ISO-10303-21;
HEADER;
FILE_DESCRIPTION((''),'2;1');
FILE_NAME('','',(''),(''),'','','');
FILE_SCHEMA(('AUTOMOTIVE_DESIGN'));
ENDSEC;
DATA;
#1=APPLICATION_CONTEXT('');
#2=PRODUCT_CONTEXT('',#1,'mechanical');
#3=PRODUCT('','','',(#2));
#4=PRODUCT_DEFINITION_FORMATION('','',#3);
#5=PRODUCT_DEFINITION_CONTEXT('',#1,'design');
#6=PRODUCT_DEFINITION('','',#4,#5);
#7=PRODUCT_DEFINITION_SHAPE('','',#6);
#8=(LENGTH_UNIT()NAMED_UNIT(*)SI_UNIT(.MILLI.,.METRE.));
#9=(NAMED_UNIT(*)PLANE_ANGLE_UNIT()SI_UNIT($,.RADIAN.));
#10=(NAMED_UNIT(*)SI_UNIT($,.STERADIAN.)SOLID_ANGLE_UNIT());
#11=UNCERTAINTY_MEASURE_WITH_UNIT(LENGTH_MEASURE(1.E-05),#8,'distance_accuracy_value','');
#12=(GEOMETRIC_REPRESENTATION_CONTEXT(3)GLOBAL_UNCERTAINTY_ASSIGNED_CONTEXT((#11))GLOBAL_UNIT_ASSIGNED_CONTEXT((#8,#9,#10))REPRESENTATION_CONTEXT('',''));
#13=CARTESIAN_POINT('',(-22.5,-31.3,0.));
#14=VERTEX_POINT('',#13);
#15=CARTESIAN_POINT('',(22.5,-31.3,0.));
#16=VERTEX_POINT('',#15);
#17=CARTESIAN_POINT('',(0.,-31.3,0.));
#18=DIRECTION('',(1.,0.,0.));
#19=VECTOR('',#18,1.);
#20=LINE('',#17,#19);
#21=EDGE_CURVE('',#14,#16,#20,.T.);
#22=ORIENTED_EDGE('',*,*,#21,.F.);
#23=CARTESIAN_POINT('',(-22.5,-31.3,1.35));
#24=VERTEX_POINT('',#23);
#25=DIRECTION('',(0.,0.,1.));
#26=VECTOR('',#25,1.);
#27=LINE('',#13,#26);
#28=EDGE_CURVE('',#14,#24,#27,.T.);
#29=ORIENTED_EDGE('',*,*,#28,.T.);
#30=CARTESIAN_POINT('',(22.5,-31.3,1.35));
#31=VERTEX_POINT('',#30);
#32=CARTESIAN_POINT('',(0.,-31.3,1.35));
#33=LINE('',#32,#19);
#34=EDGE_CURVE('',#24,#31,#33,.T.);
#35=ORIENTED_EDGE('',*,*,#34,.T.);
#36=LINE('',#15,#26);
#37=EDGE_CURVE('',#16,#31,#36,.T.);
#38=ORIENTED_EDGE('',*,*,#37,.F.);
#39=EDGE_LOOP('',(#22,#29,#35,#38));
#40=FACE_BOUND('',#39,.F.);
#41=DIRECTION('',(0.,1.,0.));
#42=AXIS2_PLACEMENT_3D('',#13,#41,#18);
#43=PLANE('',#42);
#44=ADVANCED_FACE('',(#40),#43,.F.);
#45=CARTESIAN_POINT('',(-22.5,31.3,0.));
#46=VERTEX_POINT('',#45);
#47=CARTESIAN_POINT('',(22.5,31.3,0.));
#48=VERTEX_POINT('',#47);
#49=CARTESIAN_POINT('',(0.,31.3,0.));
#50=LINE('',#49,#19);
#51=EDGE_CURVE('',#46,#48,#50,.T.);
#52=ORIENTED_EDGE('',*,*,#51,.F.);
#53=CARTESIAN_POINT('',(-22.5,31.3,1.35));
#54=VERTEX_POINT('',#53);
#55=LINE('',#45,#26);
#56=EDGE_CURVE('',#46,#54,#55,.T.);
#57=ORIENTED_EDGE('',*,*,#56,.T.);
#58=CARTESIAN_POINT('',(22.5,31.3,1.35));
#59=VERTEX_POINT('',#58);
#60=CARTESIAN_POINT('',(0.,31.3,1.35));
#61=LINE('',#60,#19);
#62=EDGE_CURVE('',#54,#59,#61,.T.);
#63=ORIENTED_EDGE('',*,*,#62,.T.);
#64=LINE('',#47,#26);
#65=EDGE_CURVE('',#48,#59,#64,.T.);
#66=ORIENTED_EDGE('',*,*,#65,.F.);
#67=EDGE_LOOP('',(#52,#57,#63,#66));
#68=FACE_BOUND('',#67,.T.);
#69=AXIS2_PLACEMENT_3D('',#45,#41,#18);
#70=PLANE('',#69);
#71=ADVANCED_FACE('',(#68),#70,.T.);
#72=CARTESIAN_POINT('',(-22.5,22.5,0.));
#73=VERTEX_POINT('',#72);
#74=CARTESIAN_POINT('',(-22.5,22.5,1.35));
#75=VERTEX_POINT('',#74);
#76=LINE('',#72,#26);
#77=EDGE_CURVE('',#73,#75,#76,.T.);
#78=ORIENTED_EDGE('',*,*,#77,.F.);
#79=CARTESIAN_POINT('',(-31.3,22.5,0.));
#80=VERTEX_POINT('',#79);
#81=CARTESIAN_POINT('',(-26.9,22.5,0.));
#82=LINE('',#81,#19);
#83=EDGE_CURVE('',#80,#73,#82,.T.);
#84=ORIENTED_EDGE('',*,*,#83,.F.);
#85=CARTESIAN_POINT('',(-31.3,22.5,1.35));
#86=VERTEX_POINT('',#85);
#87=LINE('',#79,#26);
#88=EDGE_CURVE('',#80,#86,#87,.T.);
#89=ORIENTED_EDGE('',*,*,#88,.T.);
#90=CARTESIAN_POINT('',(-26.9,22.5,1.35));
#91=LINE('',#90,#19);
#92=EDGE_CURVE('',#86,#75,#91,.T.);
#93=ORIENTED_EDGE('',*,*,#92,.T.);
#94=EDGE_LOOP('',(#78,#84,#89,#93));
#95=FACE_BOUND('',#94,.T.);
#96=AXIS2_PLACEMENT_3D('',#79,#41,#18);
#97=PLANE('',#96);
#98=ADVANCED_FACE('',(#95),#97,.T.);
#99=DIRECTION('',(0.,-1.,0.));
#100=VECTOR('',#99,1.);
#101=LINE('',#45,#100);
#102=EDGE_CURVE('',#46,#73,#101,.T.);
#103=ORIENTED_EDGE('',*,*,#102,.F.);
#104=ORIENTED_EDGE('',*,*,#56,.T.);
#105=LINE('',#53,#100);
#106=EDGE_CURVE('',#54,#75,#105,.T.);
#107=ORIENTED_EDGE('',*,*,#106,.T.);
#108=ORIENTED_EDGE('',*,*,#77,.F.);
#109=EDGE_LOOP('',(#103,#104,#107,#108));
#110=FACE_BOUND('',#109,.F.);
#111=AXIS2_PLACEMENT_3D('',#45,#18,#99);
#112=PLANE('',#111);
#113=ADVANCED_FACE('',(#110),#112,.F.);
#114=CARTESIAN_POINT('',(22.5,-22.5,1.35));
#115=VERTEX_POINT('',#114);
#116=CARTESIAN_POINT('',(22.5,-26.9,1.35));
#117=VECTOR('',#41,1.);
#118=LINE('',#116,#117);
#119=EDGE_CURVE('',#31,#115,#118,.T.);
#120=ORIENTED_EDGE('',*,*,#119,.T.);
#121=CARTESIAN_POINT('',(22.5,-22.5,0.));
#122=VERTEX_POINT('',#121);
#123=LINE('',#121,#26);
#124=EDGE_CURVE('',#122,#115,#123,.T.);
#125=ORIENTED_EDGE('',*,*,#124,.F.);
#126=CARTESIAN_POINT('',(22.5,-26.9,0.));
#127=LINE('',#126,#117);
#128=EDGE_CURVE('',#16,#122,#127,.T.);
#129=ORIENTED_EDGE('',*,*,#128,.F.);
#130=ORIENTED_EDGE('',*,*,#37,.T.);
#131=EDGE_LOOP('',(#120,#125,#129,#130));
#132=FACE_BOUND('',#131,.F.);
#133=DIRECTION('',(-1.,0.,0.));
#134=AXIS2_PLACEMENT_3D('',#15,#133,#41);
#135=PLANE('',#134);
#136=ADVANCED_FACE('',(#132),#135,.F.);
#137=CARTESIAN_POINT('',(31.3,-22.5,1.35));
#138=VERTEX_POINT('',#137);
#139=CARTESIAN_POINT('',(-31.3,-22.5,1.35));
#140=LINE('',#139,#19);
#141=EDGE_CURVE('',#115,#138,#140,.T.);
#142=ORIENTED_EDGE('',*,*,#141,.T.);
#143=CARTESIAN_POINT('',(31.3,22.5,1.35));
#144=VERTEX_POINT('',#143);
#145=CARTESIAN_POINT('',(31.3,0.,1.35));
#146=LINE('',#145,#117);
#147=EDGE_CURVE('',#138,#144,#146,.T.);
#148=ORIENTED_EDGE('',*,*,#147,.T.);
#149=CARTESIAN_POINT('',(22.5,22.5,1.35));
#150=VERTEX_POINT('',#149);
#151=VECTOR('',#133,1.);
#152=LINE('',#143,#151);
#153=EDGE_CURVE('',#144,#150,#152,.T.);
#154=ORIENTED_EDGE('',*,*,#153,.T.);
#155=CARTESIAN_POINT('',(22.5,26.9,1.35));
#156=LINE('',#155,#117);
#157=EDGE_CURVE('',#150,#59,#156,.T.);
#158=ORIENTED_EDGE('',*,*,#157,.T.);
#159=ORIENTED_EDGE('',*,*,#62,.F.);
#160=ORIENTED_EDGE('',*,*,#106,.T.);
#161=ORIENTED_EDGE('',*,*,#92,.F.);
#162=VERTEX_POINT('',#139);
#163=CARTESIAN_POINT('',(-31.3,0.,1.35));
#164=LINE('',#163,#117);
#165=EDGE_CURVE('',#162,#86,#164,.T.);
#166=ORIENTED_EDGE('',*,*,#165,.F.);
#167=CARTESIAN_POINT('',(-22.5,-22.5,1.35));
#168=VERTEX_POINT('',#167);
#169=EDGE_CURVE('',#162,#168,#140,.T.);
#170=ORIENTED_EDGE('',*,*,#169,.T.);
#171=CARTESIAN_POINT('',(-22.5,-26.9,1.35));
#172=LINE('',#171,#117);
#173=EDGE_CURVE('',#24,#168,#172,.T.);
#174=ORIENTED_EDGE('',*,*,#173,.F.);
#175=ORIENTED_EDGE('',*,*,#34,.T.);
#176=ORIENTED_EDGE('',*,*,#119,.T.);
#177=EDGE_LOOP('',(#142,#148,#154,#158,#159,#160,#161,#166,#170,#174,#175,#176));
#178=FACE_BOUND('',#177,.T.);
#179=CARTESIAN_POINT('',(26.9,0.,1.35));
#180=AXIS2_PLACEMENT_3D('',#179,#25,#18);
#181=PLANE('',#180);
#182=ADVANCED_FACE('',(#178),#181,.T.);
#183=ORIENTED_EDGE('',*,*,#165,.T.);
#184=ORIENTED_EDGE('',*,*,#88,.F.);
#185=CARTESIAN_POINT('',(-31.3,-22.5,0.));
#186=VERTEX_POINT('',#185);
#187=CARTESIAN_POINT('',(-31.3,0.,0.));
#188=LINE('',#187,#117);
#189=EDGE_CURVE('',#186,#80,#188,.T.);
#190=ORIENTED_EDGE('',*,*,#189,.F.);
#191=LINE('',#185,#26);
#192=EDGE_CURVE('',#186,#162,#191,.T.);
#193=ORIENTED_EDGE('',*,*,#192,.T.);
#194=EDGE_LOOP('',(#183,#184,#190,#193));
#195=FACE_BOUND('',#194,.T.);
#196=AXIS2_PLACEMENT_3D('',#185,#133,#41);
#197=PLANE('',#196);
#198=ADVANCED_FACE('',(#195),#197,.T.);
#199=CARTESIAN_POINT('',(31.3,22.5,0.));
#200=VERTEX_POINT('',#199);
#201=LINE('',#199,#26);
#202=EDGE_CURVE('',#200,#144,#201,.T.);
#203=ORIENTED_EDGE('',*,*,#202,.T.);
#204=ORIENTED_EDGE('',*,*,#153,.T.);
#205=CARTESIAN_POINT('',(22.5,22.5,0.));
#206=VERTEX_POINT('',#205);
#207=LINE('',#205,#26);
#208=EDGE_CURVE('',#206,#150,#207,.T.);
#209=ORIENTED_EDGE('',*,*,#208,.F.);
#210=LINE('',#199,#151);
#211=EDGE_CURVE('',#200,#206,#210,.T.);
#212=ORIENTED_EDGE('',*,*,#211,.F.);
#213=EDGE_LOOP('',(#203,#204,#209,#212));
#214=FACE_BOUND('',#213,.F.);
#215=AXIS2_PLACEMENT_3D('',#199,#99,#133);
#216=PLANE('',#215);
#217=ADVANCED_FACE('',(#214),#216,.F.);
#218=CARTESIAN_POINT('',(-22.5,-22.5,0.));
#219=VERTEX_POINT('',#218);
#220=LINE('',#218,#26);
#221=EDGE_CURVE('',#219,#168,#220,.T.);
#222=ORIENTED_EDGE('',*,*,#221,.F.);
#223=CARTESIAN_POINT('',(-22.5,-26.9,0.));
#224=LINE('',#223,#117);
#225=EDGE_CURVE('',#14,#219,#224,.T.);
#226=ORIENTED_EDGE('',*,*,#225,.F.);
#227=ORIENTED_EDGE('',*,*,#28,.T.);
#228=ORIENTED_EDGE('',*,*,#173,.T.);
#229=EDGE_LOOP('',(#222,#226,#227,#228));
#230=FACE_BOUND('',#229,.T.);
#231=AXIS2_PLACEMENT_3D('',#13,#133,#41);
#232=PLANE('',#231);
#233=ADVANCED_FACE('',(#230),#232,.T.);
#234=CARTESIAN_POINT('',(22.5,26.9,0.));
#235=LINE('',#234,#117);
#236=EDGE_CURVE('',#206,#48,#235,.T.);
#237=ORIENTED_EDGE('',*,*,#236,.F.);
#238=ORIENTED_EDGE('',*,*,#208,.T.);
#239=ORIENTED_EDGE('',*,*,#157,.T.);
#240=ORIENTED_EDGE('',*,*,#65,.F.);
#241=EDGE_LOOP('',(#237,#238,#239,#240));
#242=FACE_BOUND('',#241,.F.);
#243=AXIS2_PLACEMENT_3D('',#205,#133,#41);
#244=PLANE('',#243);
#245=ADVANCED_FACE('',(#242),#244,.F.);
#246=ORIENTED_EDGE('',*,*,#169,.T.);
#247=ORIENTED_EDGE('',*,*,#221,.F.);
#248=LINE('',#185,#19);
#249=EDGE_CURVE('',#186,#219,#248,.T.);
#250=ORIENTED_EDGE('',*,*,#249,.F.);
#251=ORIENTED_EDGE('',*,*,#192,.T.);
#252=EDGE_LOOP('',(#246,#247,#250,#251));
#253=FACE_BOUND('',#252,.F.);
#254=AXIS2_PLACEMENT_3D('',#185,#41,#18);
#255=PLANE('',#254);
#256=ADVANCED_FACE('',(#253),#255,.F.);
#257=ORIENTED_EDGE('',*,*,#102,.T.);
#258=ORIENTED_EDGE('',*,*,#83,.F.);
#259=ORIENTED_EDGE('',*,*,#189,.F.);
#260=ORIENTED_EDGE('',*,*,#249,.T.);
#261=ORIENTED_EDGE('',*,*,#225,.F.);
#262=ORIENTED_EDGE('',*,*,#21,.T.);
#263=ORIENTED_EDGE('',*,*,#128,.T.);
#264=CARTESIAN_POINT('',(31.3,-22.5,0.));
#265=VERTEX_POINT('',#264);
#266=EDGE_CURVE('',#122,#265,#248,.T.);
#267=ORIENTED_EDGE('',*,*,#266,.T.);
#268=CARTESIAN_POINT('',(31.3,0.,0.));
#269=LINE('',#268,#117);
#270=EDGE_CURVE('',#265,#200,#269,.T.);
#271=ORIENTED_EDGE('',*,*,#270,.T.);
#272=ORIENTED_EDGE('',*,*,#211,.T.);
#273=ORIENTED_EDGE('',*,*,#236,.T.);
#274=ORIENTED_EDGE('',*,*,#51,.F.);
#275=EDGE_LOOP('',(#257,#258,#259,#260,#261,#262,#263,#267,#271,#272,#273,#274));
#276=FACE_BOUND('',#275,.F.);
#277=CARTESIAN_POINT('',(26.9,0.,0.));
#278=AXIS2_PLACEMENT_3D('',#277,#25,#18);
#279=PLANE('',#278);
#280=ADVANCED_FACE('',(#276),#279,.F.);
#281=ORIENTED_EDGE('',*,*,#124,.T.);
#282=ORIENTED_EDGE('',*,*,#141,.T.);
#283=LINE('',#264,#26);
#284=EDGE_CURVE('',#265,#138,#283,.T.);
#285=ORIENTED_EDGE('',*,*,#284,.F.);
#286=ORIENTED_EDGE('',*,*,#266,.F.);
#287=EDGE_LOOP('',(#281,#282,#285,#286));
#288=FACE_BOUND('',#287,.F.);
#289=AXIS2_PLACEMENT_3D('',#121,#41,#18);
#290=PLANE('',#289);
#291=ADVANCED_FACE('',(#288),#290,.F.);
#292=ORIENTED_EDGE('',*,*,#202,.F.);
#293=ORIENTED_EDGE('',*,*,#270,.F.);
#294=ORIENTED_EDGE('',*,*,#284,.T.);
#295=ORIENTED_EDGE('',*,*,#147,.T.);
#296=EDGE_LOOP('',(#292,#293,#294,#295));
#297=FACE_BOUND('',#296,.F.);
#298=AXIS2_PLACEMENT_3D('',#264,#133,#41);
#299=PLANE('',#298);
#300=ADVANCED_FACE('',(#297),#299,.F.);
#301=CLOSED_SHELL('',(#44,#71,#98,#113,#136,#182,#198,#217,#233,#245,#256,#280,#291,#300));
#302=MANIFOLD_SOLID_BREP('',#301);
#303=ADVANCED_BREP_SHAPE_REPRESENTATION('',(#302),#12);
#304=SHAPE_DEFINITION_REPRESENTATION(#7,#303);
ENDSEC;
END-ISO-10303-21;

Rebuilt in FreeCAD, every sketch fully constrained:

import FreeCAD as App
import Part
import Sketcher

V = App.Vector


def add_polygon(sketch, points):
    """Adds a closed chain of lines whose ends are joined by coincident constraints."""
    first, n = sketch.GeometryCount, len(points)
    for a, b in zip(points, points[1:] + points[:1]):
        sketch.addGeometry(Part.LineSegment(App.Vector(*a, 0), App.Vector(*b, 0)), False)
    for i in range(n):
        sketch.addConstraint(Sketcher.Constraint("Coincident", first + i, 2, first + (i + 1) % n, 1))

doc = App.newDocument("Part")
body = doc.addObject("PartDesign::Body", "Body")

sketch1 = doc.addObject("Sketcher::SketchObject", "Sketch")
body.addObject(sketch1)
sketch1.AttachmentSupport = (doc.XY_Plane, [""])
sketch1.MapMode = "FlatFace"
add_polygon(sketch1, [(31, -22), (31, 22), (22, 22), (22, 31), (-22, 31), (-22, 22), (-31, 22), (-31, -22), (-22, -22), (-22, -31), (22, -31), (22, -22)])
sketch1.addConstraint(Sketcher.Constraint("Vertical", 0))
sketch1.addConstraint(Sketcher.Constraint("Horizontal", 1))
sketch1.addConstraint(Sketcher.Constraint("Vertical", 2))
sketch1.addConstraint(Sketcher.Constraint("Horizontal", 3))
sketch1.addConstraint(Sketcher.Constraint("Vertical", 4))
sketch1.addConstraint(Sketcher.Constraint("Horizontal", 5))
sketch1.addConstraint(Sketcher.Constraint("Vertical", 6))
sketch1.addConstraint(Sketcher.Constraint("Horizontal", 7))
sketch1.addConstraint(Sketcher.Constraint("Vertical", 8))
sketch1.addConstraint(Sketcher.Constraint("Horizontal", 9))
sketch1.addConstraint(Sketcher.Constraint("Vertical", 10))
sketch1.addConstraint(Sketcher.Constraint("Horizontal", 11))
sketch1.addConstraint(Sketcher.Constraint("Symmetric", 0, 2, 6, 2, -1, 1))
sketch1.addConstraint(Sketcher.Constraint("Symmetric", 2, 2, 8, 2, -1, 1))
sketch1.addConstraint(Sketcher.Constraint("Symmetric", 4, 2, 10, 2, -1, 1))
sketch1.addConstraint(Sketcher.Constraint("Symmetric", 1, 2, 4, 2, -2))
sketch1.addConstraint(Sketcher.Constraint("Equal", 9, 0))
sketch1.addConstraint(Sketcher.Constraint("Equal", 11, 2))
sketch1.addConstraint(Sketcher.Constraint("DistanceX", 3, 2, 3, 1, 45.0))
sketch1.addConstraint(Sketcher.Constraint("DistanceX", 1, 2, 1, 1, 8.8))
pad1 = doc.addObject("PartDesign::Pad", "Pad")
body.addObject(pad1)
pad1.Profile = sketch1
pad1.Length = 1.35

doc.recompute()
